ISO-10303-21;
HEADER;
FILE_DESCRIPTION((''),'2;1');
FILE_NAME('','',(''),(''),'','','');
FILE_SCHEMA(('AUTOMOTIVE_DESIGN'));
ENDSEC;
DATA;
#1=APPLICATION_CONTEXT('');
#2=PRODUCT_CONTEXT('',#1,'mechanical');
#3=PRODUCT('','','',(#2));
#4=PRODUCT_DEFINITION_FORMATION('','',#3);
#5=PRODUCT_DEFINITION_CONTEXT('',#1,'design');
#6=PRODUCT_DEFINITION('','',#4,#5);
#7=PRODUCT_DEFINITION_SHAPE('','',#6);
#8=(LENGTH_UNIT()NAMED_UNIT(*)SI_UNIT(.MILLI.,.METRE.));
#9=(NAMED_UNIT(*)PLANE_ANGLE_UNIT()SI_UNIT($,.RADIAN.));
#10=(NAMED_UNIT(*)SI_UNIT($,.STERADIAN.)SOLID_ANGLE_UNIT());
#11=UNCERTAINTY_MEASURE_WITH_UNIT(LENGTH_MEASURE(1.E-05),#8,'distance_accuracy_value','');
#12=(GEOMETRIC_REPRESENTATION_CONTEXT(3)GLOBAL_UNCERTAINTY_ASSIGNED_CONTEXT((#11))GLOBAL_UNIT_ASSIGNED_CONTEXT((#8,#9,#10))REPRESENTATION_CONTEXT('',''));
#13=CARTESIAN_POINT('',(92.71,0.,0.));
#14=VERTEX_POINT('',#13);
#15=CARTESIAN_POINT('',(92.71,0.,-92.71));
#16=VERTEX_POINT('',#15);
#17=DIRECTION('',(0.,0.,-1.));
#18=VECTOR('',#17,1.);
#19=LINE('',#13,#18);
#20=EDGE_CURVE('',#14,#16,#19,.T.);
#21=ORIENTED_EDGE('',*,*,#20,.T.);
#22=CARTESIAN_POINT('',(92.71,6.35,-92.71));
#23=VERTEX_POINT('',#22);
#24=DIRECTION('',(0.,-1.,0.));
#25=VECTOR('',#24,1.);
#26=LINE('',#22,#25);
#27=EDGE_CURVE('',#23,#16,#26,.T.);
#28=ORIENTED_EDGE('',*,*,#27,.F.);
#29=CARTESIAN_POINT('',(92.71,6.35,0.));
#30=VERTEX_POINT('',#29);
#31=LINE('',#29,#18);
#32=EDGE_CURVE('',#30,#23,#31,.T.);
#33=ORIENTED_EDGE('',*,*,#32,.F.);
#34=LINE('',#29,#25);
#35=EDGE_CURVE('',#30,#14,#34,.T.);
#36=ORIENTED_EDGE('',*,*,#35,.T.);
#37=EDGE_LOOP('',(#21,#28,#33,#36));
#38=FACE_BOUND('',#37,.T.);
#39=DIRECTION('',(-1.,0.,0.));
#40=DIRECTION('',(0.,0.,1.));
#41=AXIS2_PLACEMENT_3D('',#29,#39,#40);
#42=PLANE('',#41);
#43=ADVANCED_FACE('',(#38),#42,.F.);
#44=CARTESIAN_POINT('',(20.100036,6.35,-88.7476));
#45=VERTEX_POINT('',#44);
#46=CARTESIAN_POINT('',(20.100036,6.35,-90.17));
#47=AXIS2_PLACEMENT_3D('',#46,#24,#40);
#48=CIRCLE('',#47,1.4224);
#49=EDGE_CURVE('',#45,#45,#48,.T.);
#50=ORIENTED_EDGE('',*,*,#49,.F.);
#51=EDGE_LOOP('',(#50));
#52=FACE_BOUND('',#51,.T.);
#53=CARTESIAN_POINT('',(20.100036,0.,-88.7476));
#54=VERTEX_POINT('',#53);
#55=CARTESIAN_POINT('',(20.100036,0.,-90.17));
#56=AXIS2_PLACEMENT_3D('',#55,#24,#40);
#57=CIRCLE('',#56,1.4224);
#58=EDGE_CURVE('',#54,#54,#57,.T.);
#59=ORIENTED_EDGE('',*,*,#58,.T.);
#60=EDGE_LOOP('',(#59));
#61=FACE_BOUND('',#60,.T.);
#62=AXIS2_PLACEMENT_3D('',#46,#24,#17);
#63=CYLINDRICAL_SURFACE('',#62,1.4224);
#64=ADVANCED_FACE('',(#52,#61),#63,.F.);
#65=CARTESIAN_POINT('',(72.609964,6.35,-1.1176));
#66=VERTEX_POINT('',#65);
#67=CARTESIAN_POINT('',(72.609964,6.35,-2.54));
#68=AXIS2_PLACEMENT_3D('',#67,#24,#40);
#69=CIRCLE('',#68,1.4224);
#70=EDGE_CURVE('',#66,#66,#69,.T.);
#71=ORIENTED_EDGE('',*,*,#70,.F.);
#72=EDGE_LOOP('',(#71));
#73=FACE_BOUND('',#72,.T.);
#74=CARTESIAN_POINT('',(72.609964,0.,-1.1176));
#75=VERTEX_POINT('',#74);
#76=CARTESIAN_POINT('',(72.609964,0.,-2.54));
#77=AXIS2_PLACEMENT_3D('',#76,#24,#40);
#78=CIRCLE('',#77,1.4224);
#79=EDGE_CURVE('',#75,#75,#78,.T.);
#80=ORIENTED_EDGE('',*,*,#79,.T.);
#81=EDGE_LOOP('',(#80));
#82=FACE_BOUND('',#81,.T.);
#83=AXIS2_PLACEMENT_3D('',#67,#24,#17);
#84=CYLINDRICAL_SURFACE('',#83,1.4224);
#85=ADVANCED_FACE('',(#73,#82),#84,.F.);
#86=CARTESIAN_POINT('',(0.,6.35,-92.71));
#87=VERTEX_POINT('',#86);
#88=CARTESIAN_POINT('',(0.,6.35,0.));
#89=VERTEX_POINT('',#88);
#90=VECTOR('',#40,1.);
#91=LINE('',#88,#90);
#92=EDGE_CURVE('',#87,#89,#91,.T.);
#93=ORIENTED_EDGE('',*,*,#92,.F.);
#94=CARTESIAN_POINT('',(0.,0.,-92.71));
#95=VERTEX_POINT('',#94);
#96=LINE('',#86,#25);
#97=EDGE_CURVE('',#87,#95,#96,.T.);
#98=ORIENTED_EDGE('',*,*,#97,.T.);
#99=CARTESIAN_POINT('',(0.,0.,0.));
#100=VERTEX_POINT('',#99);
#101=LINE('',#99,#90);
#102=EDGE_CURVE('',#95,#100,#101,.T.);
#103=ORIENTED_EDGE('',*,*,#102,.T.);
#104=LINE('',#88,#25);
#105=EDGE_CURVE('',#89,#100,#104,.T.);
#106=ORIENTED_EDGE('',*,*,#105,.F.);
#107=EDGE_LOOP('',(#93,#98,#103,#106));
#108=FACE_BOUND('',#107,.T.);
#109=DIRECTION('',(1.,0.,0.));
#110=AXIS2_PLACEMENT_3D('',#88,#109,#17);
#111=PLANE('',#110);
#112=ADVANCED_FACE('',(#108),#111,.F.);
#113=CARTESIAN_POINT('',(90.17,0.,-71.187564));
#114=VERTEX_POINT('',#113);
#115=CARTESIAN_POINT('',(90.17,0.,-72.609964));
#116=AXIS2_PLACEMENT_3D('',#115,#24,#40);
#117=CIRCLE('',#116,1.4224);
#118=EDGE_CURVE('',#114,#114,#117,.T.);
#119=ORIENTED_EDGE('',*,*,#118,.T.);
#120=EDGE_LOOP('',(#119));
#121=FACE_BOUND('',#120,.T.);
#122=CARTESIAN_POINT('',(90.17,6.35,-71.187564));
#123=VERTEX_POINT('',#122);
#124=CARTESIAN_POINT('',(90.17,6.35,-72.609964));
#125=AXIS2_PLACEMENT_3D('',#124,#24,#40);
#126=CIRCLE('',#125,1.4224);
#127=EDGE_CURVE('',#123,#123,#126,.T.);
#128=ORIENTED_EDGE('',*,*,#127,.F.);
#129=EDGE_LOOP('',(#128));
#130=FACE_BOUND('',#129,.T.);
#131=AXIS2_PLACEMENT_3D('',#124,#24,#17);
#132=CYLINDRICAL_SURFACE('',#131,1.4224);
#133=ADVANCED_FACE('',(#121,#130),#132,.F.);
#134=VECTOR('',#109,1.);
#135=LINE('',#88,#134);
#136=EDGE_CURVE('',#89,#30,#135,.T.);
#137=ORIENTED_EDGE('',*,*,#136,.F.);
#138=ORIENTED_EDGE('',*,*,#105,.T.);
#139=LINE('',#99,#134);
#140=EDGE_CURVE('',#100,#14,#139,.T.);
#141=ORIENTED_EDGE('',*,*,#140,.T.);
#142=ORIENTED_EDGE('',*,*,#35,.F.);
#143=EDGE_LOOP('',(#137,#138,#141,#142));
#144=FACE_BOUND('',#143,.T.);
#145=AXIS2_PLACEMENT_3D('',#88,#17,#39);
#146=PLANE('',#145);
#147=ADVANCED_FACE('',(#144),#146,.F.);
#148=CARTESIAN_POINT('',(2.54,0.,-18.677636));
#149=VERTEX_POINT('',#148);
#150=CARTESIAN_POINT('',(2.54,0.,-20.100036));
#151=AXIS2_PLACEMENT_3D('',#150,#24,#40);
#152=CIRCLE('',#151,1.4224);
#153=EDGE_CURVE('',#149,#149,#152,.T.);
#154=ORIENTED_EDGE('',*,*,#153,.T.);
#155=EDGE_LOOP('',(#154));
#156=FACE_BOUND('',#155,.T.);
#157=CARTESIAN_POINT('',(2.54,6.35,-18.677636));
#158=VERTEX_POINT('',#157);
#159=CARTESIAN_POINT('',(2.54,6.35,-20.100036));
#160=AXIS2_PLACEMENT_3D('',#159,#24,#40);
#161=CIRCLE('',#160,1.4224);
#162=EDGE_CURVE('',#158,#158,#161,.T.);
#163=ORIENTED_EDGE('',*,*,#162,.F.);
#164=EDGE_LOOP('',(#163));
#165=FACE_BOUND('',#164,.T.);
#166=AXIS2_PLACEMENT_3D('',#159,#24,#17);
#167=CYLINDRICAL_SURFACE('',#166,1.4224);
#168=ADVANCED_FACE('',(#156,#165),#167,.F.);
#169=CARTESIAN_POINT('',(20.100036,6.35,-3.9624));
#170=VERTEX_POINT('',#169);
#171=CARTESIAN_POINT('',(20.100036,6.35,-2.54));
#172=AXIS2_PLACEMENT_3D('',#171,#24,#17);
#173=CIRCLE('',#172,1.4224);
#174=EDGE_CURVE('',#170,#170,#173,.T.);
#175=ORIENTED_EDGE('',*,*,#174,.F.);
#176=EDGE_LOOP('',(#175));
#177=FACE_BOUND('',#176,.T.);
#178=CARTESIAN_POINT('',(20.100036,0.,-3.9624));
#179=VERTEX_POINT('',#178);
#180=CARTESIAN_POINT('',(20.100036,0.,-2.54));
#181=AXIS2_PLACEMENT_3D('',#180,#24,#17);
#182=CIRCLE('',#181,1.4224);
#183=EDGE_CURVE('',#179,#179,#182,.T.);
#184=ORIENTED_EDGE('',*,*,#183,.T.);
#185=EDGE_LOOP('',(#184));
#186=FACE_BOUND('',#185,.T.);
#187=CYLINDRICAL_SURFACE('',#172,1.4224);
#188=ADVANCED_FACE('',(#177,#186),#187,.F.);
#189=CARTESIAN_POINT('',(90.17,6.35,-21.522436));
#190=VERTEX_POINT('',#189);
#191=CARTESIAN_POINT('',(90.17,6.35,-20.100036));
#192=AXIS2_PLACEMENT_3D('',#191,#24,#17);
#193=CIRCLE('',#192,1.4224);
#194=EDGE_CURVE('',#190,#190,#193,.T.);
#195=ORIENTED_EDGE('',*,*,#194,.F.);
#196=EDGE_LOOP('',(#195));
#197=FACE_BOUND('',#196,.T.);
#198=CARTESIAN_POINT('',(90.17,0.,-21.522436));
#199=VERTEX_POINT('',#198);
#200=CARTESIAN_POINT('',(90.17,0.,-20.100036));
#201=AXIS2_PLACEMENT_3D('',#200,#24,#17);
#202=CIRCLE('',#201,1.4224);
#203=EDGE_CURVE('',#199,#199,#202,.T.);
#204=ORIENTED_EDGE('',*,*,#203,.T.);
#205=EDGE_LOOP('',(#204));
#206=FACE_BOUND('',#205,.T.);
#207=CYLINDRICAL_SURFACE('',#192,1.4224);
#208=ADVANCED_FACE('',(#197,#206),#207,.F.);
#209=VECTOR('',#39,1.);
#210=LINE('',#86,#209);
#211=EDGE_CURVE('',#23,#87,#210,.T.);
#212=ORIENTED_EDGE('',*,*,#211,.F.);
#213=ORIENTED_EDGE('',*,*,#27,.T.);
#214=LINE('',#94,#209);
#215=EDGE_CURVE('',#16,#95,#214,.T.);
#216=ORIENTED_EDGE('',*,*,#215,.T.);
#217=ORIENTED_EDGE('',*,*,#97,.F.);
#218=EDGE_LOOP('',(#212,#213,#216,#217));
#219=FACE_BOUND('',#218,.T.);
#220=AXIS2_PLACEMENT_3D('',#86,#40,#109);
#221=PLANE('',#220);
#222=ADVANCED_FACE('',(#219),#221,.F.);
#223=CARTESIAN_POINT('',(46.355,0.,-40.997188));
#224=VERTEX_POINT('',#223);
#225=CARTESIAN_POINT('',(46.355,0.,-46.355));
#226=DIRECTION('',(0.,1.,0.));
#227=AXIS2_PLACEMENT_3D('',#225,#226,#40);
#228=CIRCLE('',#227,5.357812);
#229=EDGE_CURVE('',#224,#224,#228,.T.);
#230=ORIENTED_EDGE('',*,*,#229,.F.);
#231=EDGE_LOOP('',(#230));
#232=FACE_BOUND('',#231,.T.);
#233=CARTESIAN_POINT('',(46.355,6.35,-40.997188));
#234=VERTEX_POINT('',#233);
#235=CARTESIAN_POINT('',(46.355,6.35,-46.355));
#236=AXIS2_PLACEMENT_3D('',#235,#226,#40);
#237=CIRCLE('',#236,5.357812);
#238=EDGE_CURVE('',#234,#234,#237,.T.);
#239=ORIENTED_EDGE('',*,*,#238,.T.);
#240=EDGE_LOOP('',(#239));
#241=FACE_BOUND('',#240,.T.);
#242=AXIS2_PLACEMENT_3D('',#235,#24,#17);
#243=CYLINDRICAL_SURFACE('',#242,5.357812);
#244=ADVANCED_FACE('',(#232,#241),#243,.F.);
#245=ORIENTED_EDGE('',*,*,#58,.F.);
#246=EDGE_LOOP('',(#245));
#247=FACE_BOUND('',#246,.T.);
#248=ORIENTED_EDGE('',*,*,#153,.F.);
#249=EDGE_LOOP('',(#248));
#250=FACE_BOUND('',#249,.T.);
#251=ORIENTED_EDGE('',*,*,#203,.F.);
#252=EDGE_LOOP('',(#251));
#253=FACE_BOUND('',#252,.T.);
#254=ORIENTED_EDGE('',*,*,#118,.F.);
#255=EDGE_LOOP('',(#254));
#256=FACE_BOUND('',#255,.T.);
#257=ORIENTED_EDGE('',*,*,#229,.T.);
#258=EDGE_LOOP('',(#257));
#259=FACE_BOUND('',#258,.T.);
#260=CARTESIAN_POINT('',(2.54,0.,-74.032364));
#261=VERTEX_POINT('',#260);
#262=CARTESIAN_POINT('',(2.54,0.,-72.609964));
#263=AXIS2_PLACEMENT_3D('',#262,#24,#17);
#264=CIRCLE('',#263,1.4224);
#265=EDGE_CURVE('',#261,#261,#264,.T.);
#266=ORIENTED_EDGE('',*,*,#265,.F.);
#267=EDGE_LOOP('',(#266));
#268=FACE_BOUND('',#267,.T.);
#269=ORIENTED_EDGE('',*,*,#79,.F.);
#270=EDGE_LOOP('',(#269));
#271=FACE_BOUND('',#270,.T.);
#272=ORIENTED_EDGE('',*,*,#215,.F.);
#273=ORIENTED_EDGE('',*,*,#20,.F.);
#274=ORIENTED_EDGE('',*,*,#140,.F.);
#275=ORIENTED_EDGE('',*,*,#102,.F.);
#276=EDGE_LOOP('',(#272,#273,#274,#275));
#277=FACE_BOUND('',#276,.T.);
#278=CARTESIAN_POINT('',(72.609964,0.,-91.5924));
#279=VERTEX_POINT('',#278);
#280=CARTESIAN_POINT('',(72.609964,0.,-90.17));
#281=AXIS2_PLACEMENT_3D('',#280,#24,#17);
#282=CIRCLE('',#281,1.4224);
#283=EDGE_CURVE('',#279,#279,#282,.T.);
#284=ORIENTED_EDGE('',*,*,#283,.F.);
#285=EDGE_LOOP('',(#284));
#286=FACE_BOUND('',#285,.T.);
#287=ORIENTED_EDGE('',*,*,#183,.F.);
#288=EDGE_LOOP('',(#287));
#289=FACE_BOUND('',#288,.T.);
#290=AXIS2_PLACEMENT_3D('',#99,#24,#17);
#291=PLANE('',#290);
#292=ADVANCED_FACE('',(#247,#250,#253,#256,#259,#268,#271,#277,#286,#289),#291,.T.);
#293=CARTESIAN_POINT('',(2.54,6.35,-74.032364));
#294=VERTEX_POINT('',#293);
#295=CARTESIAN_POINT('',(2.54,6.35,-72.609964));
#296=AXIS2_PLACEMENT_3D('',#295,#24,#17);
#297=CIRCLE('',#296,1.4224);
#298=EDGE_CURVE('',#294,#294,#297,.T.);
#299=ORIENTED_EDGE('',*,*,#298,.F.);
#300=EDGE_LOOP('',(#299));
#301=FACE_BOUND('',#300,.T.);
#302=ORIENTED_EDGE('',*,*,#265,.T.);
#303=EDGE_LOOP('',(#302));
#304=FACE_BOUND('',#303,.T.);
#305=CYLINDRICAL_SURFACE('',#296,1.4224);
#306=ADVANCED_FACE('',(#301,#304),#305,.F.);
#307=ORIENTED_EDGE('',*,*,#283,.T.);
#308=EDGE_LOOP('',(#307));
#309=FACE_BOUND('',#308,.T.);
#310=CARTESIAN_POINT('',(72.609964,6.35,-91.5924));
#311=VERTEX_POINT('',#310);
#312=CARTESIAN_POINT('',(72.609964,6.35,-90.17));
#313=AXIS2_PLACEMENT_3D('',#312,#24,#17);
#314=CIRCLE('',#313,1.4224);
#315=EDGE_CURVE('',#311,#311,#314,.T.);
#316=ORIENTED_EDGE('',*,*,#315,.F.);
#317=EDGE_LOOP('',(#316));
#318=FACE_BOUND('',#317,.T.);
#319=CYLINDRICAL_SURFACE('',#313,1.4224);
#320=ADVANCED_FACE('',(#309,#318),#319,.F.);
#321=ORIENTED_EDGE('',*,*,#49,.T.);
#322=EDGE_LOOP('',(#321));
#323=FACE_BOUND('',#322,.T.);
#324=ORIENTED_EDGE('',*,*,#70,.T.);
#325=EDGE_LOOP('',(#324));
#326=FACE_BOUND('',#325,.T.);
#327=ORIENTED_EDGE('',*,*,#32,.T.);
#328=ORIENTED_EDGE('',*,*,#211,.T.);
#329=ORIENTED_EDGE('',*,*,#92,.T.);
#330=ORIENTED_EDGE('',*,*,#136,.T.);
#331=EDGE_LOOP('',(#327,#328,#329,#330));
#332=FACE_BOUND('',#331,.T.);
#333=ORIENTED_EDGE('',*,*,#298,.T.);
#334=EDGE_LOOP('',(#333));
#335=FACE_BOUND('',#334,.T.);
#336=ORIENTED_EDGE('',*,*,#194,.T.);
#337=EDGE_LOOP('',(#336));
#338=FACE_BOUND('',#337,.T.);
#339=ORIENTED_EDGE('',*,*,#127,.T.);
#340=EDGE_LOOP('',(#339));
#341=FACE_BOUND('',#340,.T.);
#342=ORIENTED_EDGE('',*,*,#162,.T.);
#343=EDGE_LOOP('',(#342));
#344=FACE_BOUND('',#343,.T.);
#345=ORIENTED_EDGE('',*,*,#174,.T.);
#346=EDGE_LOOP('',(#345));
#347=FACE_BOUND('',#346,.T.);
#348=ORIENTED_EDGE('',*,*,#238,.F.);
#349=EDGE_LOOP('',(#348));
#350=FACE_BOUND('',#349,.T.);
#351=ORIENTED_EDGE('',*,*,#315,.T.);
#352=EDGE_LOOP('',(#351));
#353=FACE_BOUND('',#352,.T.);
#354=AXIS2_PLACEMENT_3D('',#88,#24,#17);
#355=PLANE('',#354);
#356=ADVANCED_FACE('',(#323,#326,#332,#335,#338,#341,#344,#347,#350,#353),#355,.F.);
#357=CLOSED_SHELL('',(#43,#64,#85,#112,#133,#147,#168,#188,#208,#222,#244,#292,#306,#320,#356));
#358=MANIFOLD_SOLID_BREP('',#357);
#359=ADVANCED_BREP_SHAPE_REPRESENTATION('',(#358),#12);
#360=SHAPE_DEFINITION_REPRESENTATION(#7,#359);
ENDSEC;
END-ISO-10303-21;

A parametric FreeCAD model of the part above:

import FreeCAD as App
import Part
import Sketcher

V = App.Vector
Q = App.Units.Quantity

doc = App.newDocument("Part")
body = doc.addObject("PartDesign::Body", "Body")

# Sketch on XZ plane
sketch1 = body.newObject("Sketcher::SketchObject", "Sketch")
sketch1.AttachmentSupport = (doc.getObject("XZ_Plane"), [""])
sketch1.MapMode = "FlatFace"
sketch1.addGeometry([
    Part.LineSegment(V(0, -93, 0), V(0, 0, 0)),  # 0
    Part.LineSegment(V(0, 0, 0), V(93, 0, 0)),  # 1
    Part.LineSegment(V(93, 0, 0), V(93, -93, 0)),  # 2
    Part.LineSegment(V(93, -93, 0), V(0, -93, 0)),  # 3
    Part.Circle(V(46, -46, 0), V(0, 0, 1), 5),  # 4
], False)
sketch1.addConstraint([
    Sketcher.Constraint("Coincident", 0, 2, 1, 1),
    Sketcher.Constraint("Coincident", 1, 2, 2, 1),
    Sketcher.Constraint("Coincident", 2, 2, 3, 1),
    Sketcher.Constraint("Coincident", 3, 2, 0, 1),
    Sketcher.Constraint("Vertical", 0),
    Sketcher.Constraint("Horizontal", 1),
    Sketcher.Constraint("Vertical", 2),
    Sketcher.Constraint("Horizontal", 3),
    Sketcher.Constraint("Coincident", 0, 2, -1, 1),
    Sketcher.Constraint("Equal", 3, 0),
    Sketcher.Constraint("Diameter", 4, Q("0.421875 in")),
    Sketcher.Constraint("DistanceX", 1, 1, 1, 2, Q("3.65 in")),
    Sketcher.Constraint("DistanceX", -1, 1, 4, 3, Q("1.825 in")),
    Sketcher.Constraint("DistanceY", 4, 3, -1, 1, Q("1.825 in")),
])
pad1 = body.newObject("PartDesign::Pad", "Pad")
pad1.Profile = sketch1
pad1.Length = Q("0.25 in")
pad1.Reversed = True

# Sketch on XZ plane
sketch2 = body.newObject("Sketcher::SketchObject", "Sketch001")
sketch2.AttachmentSupport = (doc.getObject("XZ_Plane"), [""])
sketch2.MapMode = "FlatFace"
sketch2.addGeometry([
    Part.Circle(V(20.1, -2.5, 0), V(0, 0, 1), 1.4),  # 0
    Part.Circle(V(2.5, -20.1, 0), V(0, 0, 1), 1.4),  # 1
    Part.Circle(V(2.5, -72.6, 0), V(0, 0, 1), 1.4),  # 2
    Part.Circle(V(20.1, -90.2, 0), V(0, 0, 1), 1.4),  # 3
    Part.Circle(V(72.6, -90.2, 0), V(0, 0, 1), 1.4),  # 4
    Part.Circle(V(90.2, -72.6, 0), V(0, 0, 1), 1.4),  # 5
    Part.Circle(V(90.2, -20.1, 0), V(0, 0, 1), 1.4),  # 6
    Part.Circle(V(72.6, -2.5, 0), V(0, 0, 1), 1.4),  # 7
], False)
sketch2.addConstraint([
    Sketcher.Constraint("Equal", 0, 1),
    Sketcher.Constraint("Equal", 1, 2),
    Sketcher.Constraint("Equal", 2, 3),
    Sketcher.Constraint("Equal", 3, 4),
    Sketcher.Constraint("Equal", 4, 5),
    Sketcher.Constraint("Equal", 5, 6),
    Sketcher.Constraint("Equal", 6, 7),
    Sketcher.Constraint("Horizontal", 3, 3, 4, 3),
    Sketcher.Constraint("Horizontal", 2, 3, 5, 3),
    Sketcher.Constraint("Horizontal", 1, 3, 6, 3),
    Sketcher.Constraint("Horizontal", 0, 3, 7, 3),
    Sketcher.Constraint("Vertical", 1, 3, 2, 3),
    Sketcher.Constraint("Vertical", 0, 3, 3, 3),
    Sketcher.Constraint("Vertical", 5, 3, 6, 3),
    Sketcher.Constraint("Vertical", 4, 3, 7, 3),
    Sketcher.Constraint("Diameter", 0, Q("0.112 in")),
    Sketcher.Constraint("DistanceY", 0, 3, -1, 1, Q("0.1 in")),
    Sketcher.Constraint("DistanceX", -1, 1, 1, 3, Q("0.1 in")),
    Sketcher.Constraint("DistanceY", 3, 3, -1, 1, Q("3.55 in")),
    Sketcher.Constraint("DistanceX", -1, 1, 5, 3, Q("3.55 in")),
    Sketcher.Constraint("DistanceY", 2, 3, 1, 3, Q("52.509928 mm")),
    Sketcher.Constraint("DistanceX", 3, 3, 4, 3, Q("52.509928 mm")),
    Sketcher.Constraint("DistanceX", -1, 1, 0, 3, Q("20.100036 mm")),
    Sketcher.Constraint("DistanceY", 1, 3, -1, 1, Q("20.100036 mm")),
])
pocket1 = body.newObject("PartDesign::Pocket", "Pocket")
pocket1.Profile = sketch2
pocket1.Length = Q("0.25 in")

doc.recompute()
